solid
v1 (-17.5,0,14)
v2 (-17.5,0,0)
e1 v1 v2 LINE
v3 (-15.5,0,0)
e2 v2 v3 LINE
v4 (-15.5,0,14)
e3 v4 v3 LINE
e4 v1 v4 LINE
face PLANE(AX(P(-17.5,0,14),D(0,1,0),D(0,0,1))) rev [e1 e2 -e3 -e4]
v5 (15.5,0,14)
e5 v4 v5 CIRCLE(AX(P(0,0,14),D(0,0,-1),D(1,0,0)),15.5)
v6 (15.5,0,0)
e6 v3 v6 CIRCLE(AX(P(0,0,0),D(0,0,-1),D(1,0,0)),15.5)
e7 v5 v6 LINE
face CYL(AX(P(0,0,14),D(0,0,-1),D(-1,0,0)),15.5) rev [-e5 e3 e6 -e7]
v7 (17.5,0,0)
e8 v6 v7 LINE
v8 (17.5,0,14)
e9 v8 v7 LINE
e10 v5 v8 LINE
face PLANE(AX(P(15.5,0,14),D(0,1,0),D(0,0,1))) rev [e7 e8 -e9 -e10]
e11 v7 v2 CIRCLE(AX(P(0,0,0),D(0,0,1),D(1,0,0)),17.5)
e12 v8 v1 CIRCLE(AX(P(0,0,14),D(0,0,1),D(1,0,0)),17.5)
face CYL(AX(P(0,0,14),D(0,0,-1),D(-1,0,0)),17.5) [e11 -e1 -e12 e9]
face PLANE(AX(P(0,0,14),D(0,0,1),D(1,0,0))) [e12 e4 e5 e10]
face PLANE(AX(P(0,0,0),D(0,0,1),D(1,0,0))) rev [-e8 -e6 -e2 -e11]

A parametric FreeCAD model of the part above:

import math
import FreeCAD as App
import Part
import Sketcher
Q = App.Units.Quantity

doc = App.newDocument("Part")
body = doc.addObject("PartDesign::Body", "Body")

# Sketch on XY plane
sketch1 = body.newObject("Sketcher::SketchObject", "Sketch")
sketch1.AttachmentSupport = (doc.getObject("XY_Plane"), [""])
sketch1.MapMode = "FlatFace"
sketch1.addGeometry([
    Part.LineSegment(App.Vector(-17.5, 0, 0), App.Vector(-15.5, 0, 0)),
    Part.ArcOfCircle(Part.Circle(App.Vector(0, 0, 0), App.Vector(0, 0, 1), 15.5), math.radians(0), math.radians(180)),
    Part.LineSegment(App.Vector(15.5, 0, 0), App.Vector(17.5, 0, 0)),
    Part.ArcOfCircle(Part.Circle(App.Vector(0, 0, 0), App.Vector(0, 0, 1), 17.5), math.radians(0), math.radians(180)),
], False)
sketch1.addConstraint([
    Sketcher.Constraint("Coincident", 0, 2, 1, 2),
    Sketcher.Constraint("Coincident", 1, 1, 2, 1),
    Sketcher.Constraint("Coincident", 2, 2, 3, 1),
    Sketcher.Constraint("Coincident", 3, 2, 0, 1),
    Sketcher.Constraint("Horizontal", 0),
    Sketcher.Constraint("Horizontal", 2),
    Sketcher.Constraint("Coincident", 1, 3, -1, 1),
    Sketcher.Constraint("Coincident", 3, 3, -1, 1),
    Sketcher.Constraint("PointOnObject", 0, 2, -1),
    Sketcher.Constraint("PointOnObject", 1, 1, -1),
    Sketcher.Constraint("Radius", 1, Q("15.5 mm")),
    Sketcher.Constraint("Radius", 3, Q("17.5 mm")),
])
pad1 = body.newObject("PartDesign::Pad", "Pad")
pad1.Profile = sketch1
pad1.Length = 14

doc.recompute()
